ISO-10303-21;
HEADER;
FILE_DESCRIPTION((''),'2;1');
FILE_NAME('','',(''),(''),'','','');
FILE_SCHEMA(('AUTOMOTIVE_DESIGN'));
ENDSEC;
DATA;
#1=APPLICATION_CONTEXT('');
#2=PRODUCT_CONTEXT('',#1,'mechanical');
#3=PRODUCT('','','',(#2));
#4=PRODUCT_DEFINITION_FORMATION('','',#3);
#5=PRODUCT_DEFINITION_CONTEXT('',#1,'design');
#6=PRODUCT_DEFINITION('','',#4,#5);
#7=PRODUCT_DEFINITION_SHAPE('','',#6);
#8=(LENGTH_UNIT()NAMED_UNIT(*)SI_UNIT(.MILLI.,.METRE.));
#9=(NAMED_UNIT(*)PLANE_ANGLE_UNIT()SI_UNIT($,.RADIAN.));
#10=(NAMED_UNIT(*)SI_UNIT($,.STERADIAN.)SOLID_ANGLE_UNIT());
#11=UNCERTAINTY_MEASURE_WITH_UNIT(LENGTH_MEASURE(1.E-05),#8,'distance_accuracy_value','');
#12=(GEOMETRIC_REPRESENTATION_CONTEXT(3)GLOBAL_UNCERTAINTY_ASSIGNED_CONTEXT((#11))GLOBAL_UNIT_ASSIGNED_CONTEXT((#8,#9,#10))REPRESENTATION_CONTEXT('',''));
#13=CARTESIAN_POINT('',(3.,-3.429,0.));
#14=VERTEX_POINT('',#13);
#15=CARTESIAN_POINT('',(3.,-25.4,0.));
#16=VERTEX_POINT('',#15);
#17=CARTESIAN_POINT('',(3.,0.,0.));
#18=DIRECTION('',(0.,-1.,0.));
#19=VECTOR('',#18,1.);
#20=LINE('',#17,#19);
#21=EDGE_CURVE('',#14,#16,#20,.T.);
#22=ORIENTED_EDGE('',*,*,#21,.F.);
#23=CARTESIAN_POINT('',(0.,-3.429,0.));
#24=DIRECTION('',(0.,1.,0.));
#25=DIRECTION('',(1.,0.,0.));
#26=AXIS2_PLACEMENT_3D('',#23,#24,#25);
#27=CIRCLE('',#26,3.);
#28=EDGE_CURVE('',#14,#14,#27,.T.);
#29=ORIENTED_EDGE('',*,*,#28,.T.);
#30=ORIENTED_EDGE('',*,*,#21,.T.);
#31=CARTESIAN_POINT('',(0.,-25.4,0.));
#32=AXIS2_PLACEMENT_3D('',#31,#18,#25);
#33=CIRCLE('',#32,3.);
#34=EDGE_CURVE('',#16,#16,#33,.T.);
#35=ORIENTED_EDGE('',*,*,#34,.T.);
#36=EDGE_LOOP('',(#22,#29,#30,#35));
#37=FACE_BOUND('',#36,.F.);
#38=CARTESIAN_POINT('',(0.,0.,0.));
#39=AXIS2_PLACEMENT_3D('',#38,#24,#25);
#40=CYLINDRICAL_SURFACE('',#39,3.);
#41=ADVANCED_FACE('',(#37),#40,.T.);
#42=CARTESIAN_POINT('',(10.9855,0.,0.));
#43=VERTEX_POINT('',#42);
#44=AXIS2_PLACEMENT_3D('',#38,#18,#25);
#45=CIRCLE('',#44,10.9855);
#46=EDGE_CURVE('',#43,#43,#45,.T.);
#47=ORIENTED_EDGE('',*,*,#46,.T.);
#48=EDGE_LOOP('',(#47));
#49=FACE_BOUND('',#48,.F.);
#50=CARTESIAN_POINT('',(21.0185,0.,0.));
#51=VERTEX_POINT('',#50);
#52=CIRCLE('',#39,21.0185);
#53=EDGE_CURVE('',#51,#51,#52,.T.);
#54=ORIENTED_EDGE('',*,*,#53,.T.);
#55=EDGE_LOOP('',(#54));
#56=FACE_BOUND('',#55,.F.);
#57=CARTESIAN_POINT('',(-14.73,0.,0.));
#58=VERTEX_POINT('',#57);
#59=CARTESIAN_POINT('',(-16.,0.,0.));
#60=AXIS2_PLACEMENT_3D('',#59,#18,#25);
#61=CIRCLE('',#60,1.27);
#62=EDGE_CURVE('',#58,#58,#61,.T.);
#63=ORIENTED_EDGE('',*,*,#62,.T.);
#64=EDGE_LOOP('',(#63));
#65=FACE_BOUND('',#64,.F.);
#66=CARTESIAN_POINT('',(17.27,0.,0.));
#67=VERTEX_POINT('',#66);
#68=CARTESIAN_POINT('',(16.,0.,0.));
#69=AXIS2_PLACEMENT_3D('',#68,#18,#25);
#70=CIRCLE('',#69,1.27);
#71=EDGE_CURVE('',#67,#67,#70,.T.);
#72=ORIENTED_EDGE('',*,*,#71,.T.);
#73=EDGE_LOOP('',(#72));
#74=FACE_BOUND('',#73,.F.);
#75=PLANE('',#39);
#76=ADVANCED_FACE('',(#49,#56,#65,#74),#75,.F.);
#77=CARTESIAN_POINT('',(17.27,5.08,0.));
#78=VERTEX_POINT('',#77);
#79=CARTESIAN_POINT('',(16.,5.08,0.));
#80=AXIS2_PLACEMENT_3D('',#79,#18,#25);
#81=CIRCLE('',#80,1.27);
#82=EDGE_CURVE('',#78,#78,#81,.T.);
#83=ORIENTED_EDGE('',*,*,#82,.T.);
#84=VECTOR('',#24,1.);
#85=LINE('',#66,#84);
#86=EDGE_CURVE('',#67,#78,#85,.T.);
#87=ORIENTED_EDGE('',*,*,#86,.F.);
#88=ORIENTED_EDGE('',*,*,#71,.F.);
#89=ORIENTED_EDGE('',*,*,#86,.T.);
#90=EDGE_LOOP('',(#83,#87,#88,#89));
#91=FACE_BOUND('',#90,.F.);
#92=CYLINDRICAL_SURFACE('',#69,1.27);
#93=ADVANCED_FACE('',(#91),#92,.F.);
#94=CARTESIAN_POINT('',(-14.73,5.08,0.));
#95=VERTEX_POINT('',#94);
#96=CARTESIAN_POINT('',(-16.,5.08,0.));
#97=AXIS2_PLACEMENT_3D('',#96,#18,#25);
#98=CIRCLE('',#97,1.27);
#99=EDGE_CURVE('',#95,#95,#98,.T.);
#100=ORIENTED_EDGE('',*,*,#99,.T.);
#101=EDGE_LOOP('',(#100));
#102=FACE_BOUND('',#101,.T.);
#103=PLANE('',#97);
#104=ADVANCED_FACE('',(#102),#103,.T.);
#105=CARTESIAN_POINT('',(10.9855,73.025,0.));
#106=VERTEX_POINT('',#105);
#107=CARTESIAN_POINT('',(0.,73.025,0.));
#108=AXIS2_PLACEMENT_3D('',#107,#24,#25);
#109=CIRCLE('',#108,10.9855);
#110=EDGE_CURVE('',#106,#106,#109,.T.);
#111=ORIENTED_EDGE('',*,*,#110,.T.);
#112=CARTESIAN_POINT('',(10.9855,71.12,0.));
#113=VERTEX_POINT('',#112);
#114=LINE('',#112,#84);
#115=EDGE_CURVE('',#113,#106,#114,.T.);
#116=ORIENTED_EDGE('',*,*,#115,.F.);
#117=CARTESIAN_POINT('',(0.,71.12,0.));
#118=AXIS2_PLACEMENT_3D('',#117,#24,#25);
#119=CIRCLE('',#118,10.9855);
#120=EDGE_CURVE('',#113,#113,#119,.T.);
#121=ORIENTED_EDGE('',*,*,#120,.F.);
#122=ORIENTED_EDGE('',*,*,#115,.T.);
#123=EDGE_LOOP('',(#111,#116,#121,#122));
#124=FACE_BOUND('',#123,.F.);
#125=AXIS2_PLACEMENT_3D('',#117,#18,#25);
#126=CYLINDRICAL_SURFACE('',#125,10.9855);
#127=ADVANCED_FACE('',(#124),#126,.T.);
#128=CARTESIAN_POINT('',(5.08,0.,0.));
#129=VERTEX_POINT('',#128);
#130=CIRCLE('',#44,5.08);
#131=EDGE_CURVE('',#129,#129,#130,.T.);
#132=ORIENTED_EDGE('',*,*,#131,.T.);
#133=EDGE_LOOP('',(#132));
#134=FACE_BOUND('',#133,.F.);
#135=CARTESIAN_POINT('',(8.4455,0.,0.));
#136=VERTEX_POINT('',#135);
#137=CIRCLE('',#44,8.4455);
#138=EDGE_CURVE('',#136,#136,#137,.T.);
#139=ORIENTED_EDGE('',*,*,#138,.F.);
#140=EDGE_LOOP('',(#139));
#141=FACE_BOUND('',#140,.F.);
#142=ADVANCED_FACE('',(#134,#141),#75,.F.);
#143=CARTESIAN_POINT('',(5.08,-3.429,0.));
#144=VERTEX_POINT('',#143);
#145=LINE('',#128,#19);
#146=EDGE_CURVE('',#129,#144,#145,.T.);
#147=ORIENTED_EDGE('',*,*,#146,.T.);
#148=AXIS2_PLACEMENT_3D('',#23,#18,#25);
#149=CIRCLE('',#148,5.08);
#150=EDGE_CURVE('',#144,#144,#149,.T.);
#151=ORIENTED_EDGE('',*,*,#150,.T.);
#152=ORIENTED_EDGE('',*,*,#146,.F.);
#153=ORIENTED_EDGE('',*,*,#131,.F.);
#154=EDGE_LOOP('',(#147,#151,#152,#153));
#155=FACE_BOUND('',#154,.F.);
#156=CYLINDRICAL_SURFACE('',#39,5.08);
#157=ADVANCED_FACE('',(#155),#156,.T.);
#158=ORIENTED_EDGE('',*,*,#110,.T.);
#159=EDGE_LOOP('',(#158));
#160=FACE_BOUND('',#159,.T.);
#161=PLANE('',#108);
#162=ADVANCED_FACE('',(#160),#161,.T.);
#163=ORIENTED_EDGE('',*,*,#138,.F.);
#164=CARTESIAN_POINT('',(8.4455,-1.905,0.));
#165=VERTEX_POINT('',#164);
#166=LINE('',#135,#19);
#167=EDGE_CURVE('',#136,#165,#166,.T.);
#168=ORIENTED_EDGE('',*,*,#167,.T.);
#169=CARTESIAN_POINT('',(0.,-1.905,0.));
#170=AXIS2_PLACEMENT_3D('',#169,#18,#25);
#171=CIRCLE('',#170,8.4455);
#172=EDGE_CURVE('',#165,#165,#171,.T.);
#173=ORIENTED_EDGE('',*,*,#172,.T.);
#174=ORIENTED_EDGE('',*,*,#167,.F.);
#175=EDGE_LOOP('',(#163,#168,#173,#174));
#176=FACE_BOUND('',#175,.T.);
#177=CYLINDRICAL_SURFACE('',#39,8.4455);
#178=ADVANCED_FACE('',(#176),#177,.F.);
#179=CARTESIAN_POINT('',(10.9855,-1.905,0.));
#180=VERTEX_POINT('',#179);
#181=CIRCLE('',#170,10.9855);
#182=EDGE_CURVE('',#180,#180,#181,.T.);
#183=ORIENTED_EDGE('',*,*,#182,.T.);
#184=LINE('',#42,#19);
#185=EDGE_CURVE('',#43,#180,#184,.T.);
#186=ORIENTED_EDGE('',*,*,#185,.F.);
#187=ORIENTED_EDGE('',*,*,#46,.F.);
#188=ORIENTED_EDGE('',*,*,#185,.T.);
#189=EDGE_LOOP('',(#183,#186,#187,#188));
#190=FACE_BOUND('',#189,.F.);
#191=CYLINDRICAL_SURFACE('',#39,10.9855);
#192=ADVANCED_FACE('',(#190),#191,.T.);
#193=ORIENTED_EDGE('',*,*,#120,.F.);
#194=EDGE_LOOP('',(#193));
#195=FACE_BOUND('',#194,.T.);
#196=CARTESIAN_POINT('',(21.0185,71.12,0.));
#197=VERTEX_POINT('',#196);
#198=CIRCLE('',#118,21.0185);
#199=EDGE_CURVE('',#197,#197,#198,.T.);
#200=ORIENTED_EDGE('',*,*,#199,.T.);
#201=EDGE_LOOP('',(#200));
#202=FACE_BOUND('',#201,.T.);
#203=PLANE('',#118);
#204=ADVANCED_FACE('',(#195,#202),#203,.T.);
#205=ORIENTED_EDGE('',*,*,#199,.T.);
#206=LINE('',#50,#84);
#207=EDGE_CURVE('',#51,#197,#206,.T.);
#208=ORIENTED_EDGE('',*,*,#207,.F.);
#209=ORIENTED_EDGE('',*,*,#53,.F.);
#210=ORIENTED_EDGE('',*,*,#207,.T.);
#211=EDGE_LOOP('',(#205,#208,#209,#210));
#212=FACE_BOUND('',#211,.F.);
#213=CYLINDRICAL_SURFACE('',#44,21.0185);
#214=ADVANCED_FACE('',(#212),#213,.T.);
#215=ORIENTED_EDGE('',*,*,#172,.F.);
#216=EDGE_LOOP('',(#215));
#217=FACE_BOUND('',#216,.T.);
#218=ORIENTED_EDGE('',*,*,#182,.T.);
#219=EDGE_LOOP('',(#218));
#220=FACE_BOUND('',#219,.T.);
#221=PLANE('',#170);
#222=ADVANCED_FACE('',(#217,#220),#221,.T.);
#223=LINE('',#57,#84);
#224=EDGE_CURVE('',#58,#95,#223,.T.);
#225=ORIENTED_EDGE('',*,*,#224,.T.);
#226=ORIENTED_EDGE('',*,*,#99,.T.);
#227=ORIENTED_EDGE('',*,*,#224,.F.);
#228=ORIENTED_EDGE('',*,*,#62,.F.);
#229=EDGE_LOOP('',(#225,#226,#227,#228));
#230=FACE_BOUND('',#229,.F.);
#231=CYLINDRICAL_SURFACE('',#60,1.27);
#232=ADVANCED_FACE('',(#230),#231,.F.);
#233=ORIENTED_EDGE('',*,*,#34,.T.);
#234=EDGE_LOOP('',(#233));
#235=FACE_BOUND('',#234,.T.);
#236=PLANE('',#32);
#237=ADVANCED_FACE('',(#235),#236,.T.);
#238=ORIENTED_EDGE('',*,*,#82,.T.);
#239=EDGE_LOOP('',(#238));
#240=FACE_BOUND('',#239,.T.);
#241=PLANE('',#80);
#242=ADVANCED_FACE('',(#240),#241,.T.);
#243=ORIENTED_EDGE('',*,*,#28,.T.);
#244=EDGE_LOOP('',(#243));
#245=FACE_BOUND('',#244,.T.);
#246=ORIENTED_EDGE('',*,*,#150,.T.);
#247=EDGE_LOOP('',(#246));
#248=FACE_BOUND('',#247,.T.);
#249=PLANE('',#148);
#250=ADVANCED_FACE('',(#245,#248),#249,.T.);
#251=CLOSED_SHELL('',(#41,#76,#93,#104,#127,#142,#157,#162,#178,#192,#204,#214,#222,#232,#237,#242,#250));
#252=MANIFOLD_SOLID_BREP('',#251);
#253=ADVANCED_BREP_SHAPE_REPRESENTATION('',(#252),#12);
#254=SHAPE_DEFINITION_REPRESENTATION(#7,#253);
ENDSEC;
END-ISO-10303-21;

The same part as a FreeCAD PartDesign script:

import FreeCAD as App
import Part
import Sketcher
Q = App.Units.Quantity

doc = App.newDocument("Part")
body = doc.addObject("PartDesign::Body", "Body")

# Sketch on XZ plane
sketch1 = body.newObject("Sketcher::SketchObject", "Sketch")
sketch1.AttachmentSupport = (doc.getObject("XZ_Plane"), [""])
sketch1.MapMode = "FlatFace"
sketch1.addGeometry(Part.Circle(App.Vector(0, 0, 0), App.Vector(0, 0, 1), 21), False)
sketch1.addConstraint(Sketcher.Constraint("Coincident", 0, 3, -1, 1))
sketch1.addConstraint(Sketcher.Constraint("Diameter", 0, Q("1.655 in")))
pad1 = body.newObject("PartDesign::Pad", "Pad")
pad1.Profile = sketch1
pad1.Length = Q("2.8 in")
pad1.Reversed = True

# Sketch on XZ plane
sketch2 = body.newObject("Sketcher::SketchObject", "Sketch001")
sketch2.AttachmentSupport = (doc.getObject("XZ_Plane"), [""])
sketch2.MapMode = "FlatFace"
sketch2.AttachmentOffset = App.Placement(App.Vector(0, 0, -2.8 * 25.4), App.Rotation())
sketch2.addGeometry(Part.Circle(App.Vector(0, 0, 0), App.Vector(0, 0, 1), 11), False)
sketch2.addConstraint(Sketcher.Constraint("Coincident", 0, 3, -1, 1))
sketch2.addConstraint(Sketcher.Constraint("Diameter", 0, Q("0.865 in")))
pad2 = body.newObject("PartDesign::Pad", "Pad001")
pad2.Profile = sketch2
pad2.Length = Q("0.075 in")
pad2.Reversed = True

# Sketch on XZ plane
sketch3 = body.newObject("Sketcher::SketchObject", "Sketch002")
sketch3.AttachmentSupport = (doc.getObject("XZ_Plane"), [""])
sketch3.MapMode = "FlatFace"
sketch3.addGeometry(Part.Circle(App.Vector(0, 0, 0), App.Vector(0, 0, 1), 11), False)
sketch3.addGeometry(Part.Circle(App.Vector(0, 0, 0), App.Vector(0, 0, 1), 8), False)
sketch3.addConstraint(Sketcher.Constraint("Coincident", 0, 3, -1, 1))
sketch3.addConstraint(Sketcher.Constraint("Coincident", 1, 3, -1, 1))
sketch3.addConstraint(Sketcher.Constraint("Diameter", 0, Q("0.865 in")))
sketch3.addConstraint(Sketcher.Constraint("Diameter", 1, Q("0.665 in")))
pad3 = body.newObject("PartDesign::Pad", "Pad002")
pad3.Profile = sketch3
pad3.Length = Q("0.075 in")

# Sketch on XZ plane
sketch4 = body.newObject("Sketcher::SketchObject", "Sketch003")
sketch4.AttachmentSupport = (doc.getObject("XZ_Plane"), [""])
sketch4.MapMode = "FlatFace"
sketch4.addGeometry(Part.Circle(App.Vector(0, 0, 0), App.Vector(0, 0, 1), 3), False)
sketch4.addConstraint(Sketcher.Constraint("Coincident", 0, 3, -1, 1))
sketch4.addConstraint(Sketcher.Constraint("Diameter", 0, Q("6 mm")))
pad4 = body.newObject("PartDesign::Pad", "Pad003")
pad4.Profile = sketch4
pad4.Length = Q("1 in")

# Sketch on XZ plane
sketch5 = body.newObject("Sketcher::SketchObject", "Sketch004")
sketch5.AttachmentSupport = (doc.getObject("XZ_Plane"), [""])
sketch5.MapMode = "FlatFace"
sketch5.addGeometry(Part.Circle(App.Vector(0, 0, 0), App.Vector(0, 0, 1), 5), False)
sketch5.addConstraint(Sketcher.Constraint("Coincident", 0, 3, -1, 1))
sketch5.addConstraint(Sketcher.Constraint("Diameter", 0, Q("0.4 in")))
pad5 = body.newObject("PartDesign::Pad", "Pad004")
pad5.Profile = sketch5
pad5.Length = Q("0.135 in")

# Sketch on XZ plane
sketch6 = body.newObject("Sketcher::SketchObject", "Sketch005")
sketch6.AttachmentSupport = (doc.getObject("XZ_Plane"), [""])
sketch6.MapMode = "FlatFace"
sketch6.addGeometry(Part.Circle(App.Vector(16, 0, 0), App.Vector(0, 0, 1), 1.3), False)
sketch6.addGeometry(Part.Circle(App.Vector(-16, 0, 0), App.Vector(0, 0, 1), 1.3), False)
sketch6.addConstraint(Sketcher.Constraint("Equal", 0, 1))
sketch6.addConstraint(Sketcher.Constraint("Symmetric", 0, 3, 1, 3, -1, 1))
sketch6.addConstraint(Sketcher.Constraint("PointOnObject", 0, 3, -1))
sketch6.addConstraint(Sketcher.Constraint("Diameter", 0, Q("0.1 in")))
sketch6.addConstraint(Sketcher.Constraint("DistanceX", -1, 1, 0, 3, Q("16 mm")))
pocket1 = body.newObject("PartDesign::Pocket", "Pocket")
pocket1.Profile = sketch6
pocket1.Length = Q("0.2 in")

doc.recompute()
